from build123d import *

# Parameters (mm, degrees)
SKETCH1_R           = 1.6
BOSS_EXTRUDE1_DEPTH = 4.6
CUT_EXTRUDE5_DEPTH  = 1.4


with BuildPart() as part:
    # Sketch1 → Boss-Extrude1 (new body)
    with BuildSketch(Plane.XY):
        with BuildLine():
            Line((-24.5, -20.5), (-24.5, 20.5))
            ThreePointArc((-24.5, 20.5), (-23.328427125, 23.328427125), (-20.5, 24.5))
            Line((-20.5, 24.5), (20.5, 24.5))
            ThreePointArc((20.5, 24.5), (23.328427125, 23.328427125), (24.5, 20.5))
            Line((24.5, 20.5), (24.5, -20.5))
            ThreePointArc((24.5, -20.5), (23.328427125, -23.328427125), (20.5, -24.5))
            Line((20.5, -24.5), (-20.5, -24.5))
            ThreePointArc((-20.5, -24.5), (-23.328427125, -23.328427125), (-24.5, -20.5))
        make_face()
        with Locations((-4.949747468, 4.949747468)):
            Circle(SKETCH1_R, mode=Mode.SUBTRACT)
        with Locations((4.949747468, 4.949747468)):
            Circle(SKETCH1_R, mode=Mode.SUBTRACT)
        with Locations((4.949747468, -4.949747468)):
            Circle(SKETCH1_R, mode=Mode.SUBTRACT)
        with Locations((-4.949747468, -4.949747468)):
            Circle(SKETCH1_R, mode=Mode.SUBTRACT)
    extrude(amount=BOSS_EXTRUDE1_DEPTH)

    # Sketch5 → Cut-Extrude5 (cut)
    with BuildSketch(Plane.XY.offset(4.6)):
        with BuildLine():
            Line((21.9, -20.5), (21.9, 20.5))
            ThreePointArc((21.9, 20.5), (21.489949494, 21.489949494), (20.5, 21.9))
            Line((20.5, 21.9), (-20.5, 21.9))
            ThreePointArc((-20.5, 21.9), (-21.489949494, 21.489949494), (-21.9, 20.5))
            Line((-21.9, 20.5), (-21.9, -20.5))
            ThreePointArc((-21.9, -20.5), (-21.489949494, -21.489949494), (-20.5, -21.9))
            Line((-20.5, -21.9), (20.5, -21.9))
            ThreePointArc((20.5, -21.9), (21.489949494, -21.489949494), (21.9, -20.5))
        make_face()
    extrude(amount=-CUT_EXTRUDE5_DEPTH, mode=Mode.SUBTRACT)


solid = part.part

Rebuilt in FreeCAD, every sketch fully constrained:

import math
import FreeCAD as App
import Part
import Sketcher
from FreeCAD import Vector

doc = App.newDocument("Part")
body = doc.addObject("PartDesign::Body", "Body")

sketch1 = doc.addObject("Sketcher::SketchObject", "Sketch")
body.addObject(sketch1)
sketch1.AttachmentSupport = (doc.XY_Plane, [""])
sketch1.MapMode = "FlatFace"
sketch1.addGeometry(Part.LineSegment(Vector(-24.5, 20.5, 0), Vector(-24.5, -20.5, 0)), False)
sketch1.addGeometry(Part.ArcOfCircle(Part.Circle(Vector(-20.5, -20.5, 0), Vector(0, 0, 1), 4), math.radians(180), math.radians(270)), False)
sketch1.addGeometry(Part.LineSegment(Vector(-20.5, -24.5, 0), Vector(20.5, -24.5, 0)), False)
sketch1.addGeometry(Part.ArcOfCircle(Part.Circle(Vector(20.5, -20.5, 0), Vector(0, 0, 1), 4), math.radians(-90), math.radians(0)), False)
sketch1.addGeometry(Part.LineSegment(Vector(24.5, -20.5, 0), Vector(24.5, 20.5, 0)), False)
sketch1.addGeometry(Part.ArcOfCircle(Part.Circle(Vector(20.5, 20.5, 0), Vector(0, 0, 1), 4), math.radians(0), math.radians(90)), False)
sketch1.addGeometry(Part.LineSegment(Vector(20.5, 24.5, 0), Vector(-20.5, 24.5, 0)), False)
sketch1.addGeometry(Part.ArcOfCircle(Part.Circle(Vector(-20.5, 20.5, 0), Vector(0, 0, 1), 4), math.radians(90), math.radians(180)), False)
sketch1.addGeometry(Part.Circle(Vector(4.9, -4.9, 0), Vector(0, 0, 1), 1.6), False)
sketch1.addGeometry(Part.Circle(Vector(-4.9, -4.9, 0), Vector(0, 0, 1), 1.6), False)
sketch1.addGeometry(Part.Circle(Vector(4.9, 4.9, 0), Vector(0, 0, 1), 1.6), False)
sketch1.addGeometry(Part.Circle(Vector(-4.9, 4.9, 0), Vector(0, 0, 1), 1.6), False)
sketch1.addConstraint(Sketcher.Constraint("Tangent", 0, 2, 1, 1))
sketch1.addConstraint(Sketcher.Constraint("Tangent", 1, 2, 2, 1))
sketch1.addConstraint(Sketcher.Constraint("Tangent", 2, 2, 3, 1))
sketch1.addConstraint(Sketcher.Constraint("Tangent", 3, 2, 4, 1))
sketch1.addConstraint(Sketcher.Constraint("Tangent", 4, 2, 5, 1))
sketch1.addConstraint(Sketcher.Constraint("Tangent", 5, 2, 6, 1))
sketch1.addConstraint(Sketcher.Constraint("Tangent", 6, 2, 7, 1))
sketch1.addConstraint(Sketcher.Constraint("Tangent", 7, 2, 0, 1))
sketch1.addConstraint(Sketcher.Constraint("Vertical", 0))
sketch1.addConstraint(Sketcher.Constraint("Horizontal", 2))
sketch1.addConstraint(Sketcher.Constraint("Vertical", 4))
sketch1.addConstraint(Sketcher.Constraint("Horizontal", 6))
sketch1.addConstraint(Sketcher.Constraint("Equal", 1, 3))
sketch1.addConstraint(Sketcher.Constraint("Equal", 3, 5))
sketch1.addConstraint(Sketcher.Constraint("Equal", 5, 7))
sketch1.addConstraint(Sketcher.Constraint("Equal", 8, 9))
sketch1.addConstraint(Sketcher.Constraint("Equal", 9, 10))
sketch1.addConstraint(Sketcher.Constraint("Equal", 10, 11))
sketch1.addConstraint(Sketcher.Constraint("Symmetric", 1, 3, 5, 3, -1, 1))
sketch1.addConstraint(Sketcher.Constraint("Symmetric", 9, 3, 10, 3, -1, 1))
sketch1.addConstraint(Sketcher.Constraint("Symmetric", 8, 3, 11, 3, -1, 1))
sketch1.addConstraint(Sketcher.Constraint("Symmetric", 8, 3, 9, 3, -2))
sketch1.addConstraint(Sketcher.Constraint("Equal", 6, 0))
sketch1.addConstraint(Sketcher.Constraint("Radius", 1, 4.0))
sketch1.addConstraint(Sketcher.Constraint("Diameter", 8, 3.2))
sketch1.addConstraint(Sketcher.Constraint("DistanceX", 2, 1, 2, 2, 41.0))
sketch1.addConstraint(Sketcher.Constraint("DistanceX", -1, 1, 8, 3, 4.949747))
sketch1.addConstraint(Sketcher.Constraint("DistanceY", 8, 3, -1, 1, 4.949747))
pad1 = doc.addObject("PartDesign::Pad", "Pad")
body.addObject(pad1)
pad1.Profile = sketch1
pad1.Length = 4.6

sketch2 = doc.addObject("Sketcher::SketchObject", "Sketch001")
body.addObject(sketch2)
sketch2.AttachmentSupport = (doc.XY_Plane, [""])
sketch2.MapMode = "FlatFace"
sketch2.AttachmentOffset = App.Placement(Vector(0, 0, 4.6), App.Rotation())
sketch2.addGeometry(Part.LineSegment(Vector(21.9, -20.5, 0), Vector(21.9, 20.5, 0)), False)
sketch2.addGeometry(Part.ArcOfCircle(Part.Circle(Vector(20.5, 20.5, 0), Vector(0, 0, 1), 1.4), math.radians(0), math.radians(90)), False)
sketch2.addGeometry(Part.LineSegment(Vector(20.5, 21.9, 0), Vector(-20.5, 21.9, 0)), False)
sketch2.addGeometry(Part.ArcOfCircle(Part.Circle(Vector(-20.5, 20.5, 0), Vector(0, 0, 1), 1.4), math.radians(90), math.radians(180)), False)
sketch2.addGeometry(Part.LineSegment(Vector(-21.9, 20.5, 0), Vector(-21.9, -20.5, 0)), False)
sketch2.addGeometry(Part.ArcOfCircle(Part.Circle(Vector(-20.5, -20.5, 0), Vector(0, 0, 1), 1.4), math.radians(180), math.radians(270)), False)
sketch2.addGeometry(Part.LineSegment(Vector(-20.5, -21.9, 0), Vector(20.5, -21.9, 0)), False)
sketch2.addGeometry(Part.ArcOfCircle(Part.Circle(Vector(20.5, -20.5, 0), Vector(0, 0, 1), 1.4), math.radians(-90), math.radians(0)), False)
sketch2.addConstraint(Sketcher.Constraint("Tangent", 0, 2, 1, 1))
sketch2.addConstraint(Sketcher.Constraint("Tangent", 1, 2, 2, 1))
sketch2.addConstraint(Sketcher.Constraint("Tangent", 2, 2, 3, 1))
sketch2.addConstraint(Sketcher.Constraint("Tangent", 3, 2, 4, 1))
sketch2.addConstraint(Sketcher.Constraint("Tangent", 4, 2, 5, 1))
sketch2.addConstraint(Sketcher.Constraint("Tangent", 5, 2, 6, 1))
sketch2.addConstraint(Sketcher.Constraint("Tangent", 6, 2, 7, 1))
sketch2.addConstraint(Sketcher.Constraint("Tangent", 7, 2, 0, 1))
sketch2.addConstraint(Sketcher.Constraint("Vertical", 0))
sketch2.addConstraint(Sketcher.Constraint("Horizontal", 2))
sketch2.addConstraint(Sketcher.Constraint("Vertical", 4))
sketch2.addConstraint(Sketcher.Constraint("Horizontal", 6))
sketch2.addConstraint(Sketcher.Constraint("Equal", 1, 3))
sketch2.addConstraint(Sketcher.Constraint("Equal", 3, 5))
sketch2.addConstraint(Sketcher.Constraint("Equal", 5, 7))
sketch2.addConstraint(Sketcher.Constraint("Symmetric", 1, 3, 5, 3, -1, 1))
sketch2.addConstraint(Sketcher.Constraint("Equal", 6, 0))
sketch2.addConstraint(Sketcher.Constraint("Radius", 1, 1.4))
sketch2.addConstraint(Sketcher.Constraint("DistanceX", 2, 2, 2, 1, 41.0))
pocket1 = doc.addObject("PartDesign::Pocket", "Pocket")
body.addObject(pocket1)
pocket1.Profile = sketch2
pocket1.Length = 1.4

doc.recompute()
